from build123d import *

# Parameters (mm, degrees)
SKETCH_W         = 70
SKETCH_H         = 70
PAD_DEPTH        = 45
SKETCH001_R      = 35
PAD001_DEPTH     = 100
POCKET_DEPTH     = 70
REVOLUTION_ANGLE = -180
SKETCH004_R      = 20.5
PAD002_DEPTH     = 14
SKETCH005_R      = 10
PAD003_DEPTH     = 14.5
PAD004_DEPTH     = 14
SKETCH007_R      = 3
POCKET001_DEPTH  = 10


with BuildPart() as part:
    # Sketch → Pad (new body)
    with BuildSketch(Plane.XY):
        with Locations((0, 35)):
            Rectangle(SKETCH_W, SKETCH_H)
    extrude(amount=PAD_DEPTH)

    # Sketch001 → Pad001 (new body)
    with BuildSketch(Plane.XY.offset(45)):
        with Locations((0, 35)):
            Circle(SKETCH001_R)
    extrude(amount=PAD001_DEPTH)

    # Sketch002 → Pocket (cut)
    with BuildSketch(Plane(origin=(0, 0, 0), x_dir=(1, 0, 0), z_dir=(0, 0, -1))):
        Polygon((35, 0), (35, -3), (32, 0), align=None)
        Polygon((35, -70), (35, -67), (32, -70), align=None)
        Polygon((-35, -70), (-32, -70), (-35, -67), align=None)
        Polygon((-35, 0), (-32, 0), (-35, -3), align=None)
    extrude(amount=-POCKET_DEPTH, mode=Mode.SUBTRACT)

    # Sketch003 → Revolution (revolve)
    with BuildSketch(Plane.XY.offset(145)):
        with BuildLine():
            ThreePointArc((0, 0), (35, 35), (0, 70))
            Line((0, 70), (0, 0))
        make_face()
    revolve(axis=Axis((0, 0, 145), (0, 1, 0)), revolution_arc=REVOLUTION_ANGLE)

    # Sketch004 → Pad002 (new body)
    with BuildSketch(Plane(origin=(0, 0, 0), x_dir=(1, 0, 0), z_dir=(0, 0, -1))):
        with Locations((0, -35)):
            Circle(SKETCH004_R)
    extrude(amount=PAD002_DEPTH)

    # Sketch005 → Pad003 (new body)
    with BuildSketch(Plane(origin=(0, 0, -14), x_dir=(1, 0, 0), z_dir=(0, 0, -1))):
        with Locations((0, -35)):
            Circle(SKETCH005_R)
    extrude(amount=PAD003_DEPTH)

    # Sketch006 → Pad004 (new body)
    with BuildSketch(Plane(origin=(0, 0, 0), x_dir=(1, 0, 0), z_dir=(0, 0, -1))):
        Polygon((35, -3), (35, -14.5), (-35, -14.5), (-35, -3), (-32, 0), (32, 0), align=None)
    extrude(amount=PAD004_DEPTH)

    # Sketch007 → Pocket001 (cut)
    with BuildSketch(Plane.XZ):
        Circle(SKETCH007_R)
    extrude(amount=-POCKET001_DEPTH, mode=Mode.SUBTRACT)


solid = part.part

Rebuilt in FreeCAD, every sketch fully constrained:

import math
import FreeCAD as App
import Part
import Sketcher
from FreeCAD import Vector
Q = App.Units.Quantity


def add_polygon(sketch, points):
    """Adds a closed chain of lines whose ends are joined by coincident constraints."""
    first, n = sketch.GeometryCount, len(points)
    for a, b in zip(points, points[1:] + points[:1]):
        sketch.addGeometry(Part.LineSegment(App.Vector(*a, 0), App.Vector(*b, 0)), False)
    for i in range(n):
        sketch.addConstraint(Sketcher.Constraint("Coincident", first + i, 2, first + (i + 1) % n, 1))

doc = App.newDocument("Part")
body = doc.addObject("PartDesign::Body", "Body")

# Sketch on XY plane
sketch1 = doc.addObject("Sketcher::SketchObject", "Sketch")
body.addObject(sketch1)
sketch1.AttachmentSupport = (doc.XY_Plane, [""])
sketch1.MapMode = "FlatFace"
add_polygon(sketch1, [(-35, 70), (-35, 0), (35, 0), (35, 70)])  # lines 0-3
sketch1.addConstraint(Sketcher.Constraint("Vertical", 0))
sketch1.addConstraint(Sketcher.Constraint("Horizontal", 1))
sketch1.addConstraint(Sketcher.Constraint("Vertical", 2))
sketch1.addConstraint(Sketcher.Constraint("Horizontal", 3))
sketch1.addConstraint(Sketcher.Constraint("Symmetric", 0, 2, 1, 2, -1, 1))
sketch1.addConstraint(Sketcher.Constraint("Equal", 3, 0))
sketch1.addConstraint(Sketcher.Constraint("DistanceX", 1, 1, 1, 2, Q("70 mm")))
pad1 = doc.addObject("PartDesign::Pad", "Pad")
body.addObject(pad1)
pad1.Profile = sketch1
pad1.Length = 45

# Sketch on XY plane
sketch2 = doc.addObject("Sketcher::SketchObject", "Sketch001")
body.addObject(sketch2)
sketch2.AttachmentSupport = (doc.XY_Plane, [""])
sketch2.MapMode = "FlatFace"
sketch2.AttachmentOffset = App.Placement(Vector(0, 0, 45), App.Rotation())
sketch2.addGeometry(Part.Circle(Vector(0, 35, 0), Vector(0, 0, 1), 35), False)
sketch2.addConstraint(Sketcher.Constraint("PointOnObject", 0, 3, -2))
sketch2.addConstraint(Sketcher.Constraint("Diameter", 0, Q("70 mm")))
sketch2.addConstraint(Sketcher.Constraint("DistanceY", -1, 1, 0, 3, Q("35 mm")))
pad2 = doc.addObject("PartDesign::Pad", "Pad001")
body.addObject(pad2)
pad2.Profile = sketch2
pad2.Length = 100

# Sketch on XY plane
sketch3 = doc.addObject("Sketcher::SketchObject", "Sketch002")
body.addObject(sketch3)
sketch3.AttachmentSupport = (doc.XY_Plane, [""])
sketch3.MapMode = "FlatFace"
add_polygon(sketch3, [(35, 3), (35, 0), (32, 0)])  # lines 0-2
add_polygon(sketch3, [(35, 70), (35, 67), (32, 70)])  # lines 3-5
add_polygon(sketch3, [(-35, 70), (-32, 70), (-35, 67)])  # lines 6-8
add_polygon(sketch3, [(-32, 0), (-35, 0), (-35, 3)])  # lines 9-11
sketch3.addConstraint(Sketcher.Constraint("Vertical", 0))
sketch3.addConstraint(Sketcher.Constraint("Horizontal", 1))
sketch3.addConstraint(Sketcher.Constraint("Vertical", 3))
sketch3.addConstraint(Sketcher.Constraint("Horizontal", 5))
sketch3.addConstraint(Sketcher.Constraint("Horizontal", 6))
sketch3.addConstraint(Sketcher.Constraint("Vertical", 8))
sketch3.addConstraint(Sketcher.Constraint("Horizontal", 9))
sketch3.addConstraint(Sketcher.Constraint("Vertical", 10))
sketch3.addConstraint(Sketcher.Constraint("Symmetric", 0, 2, 9, 2, -1, 1))
sketch3.addConstraint(Sketcher.Constraint("Symmetric", 4, 2, 6, 2, -2))
sketch3.addConstraint(Sketcher.Constraint("Symmetric", 3, 2, 7, 2, -2))
sketch3.addConstraint(Sketcher.Constraint("Symmetric", 1, 2, 11, 2, -2))
sketch3.addConstraint(Sketcher.Constraint("Perpendicular", 2, 4))
sketch3.addConstraint(Sketcher.Constraint("Perpendicular", 4, 7))
sketch3.addConstraint(Sketcher.Constraint("Perpendicular", 7, 11))
sketch3.addConstraint(Sketcher.Constraint("Vertical", 2, 2, 3, 2))
sketch3.addConstraint(Sketcher.Constraint("Vertical", 1, 2, 4, 2))
sketch3.addConstraint(Sketcher.Constraint("DistanceX", 1, 2, 1, 1, Q("3 mm")))
sketch3.addConstraint(Sketcher.Constraint("DistanceX", -1, 1, 0, 2, Q("35 mm")))
sketch3.addConstraint(Sketcher.Constraint("DistanceY", -1, 1, 3, 2, Q("67 mm")))
pocket1 = doc.addObject("PartDesign::Pocket", "Pocket")
body.addObject(pocket1)
pocket1.Profile = sketch3
pocket1.Length = 70
pocket1.Reversed = True

# Sketch on XY plane
sketch4 = doc.addObject("Sketcher::SketchObject", "Sketch003")
body.addObject(sketch4)
sketch4.AttachmentSupport = (doc.XY_Plane, [""])
sketch4.MapMode = "FlatFace"
sketch4.AttachmentOffset = App.Placement(Vector(0, 0, 145), App.Rotation())
sketch4.addGeometry(Part.ArcOfCircle(Part.Circle(Vector(0, 35, 0), Vector(0, 0, 1), 35), math.radians(-90), math.radians(90)), False)
sketch4.addGeometry(Part.LineSegment(Vector(0, 70, 0), Vector(0, 0, 0)), False)
sketch4.addConstraint(Sketcher.Constraint("Coincident", 0, 1, 1, 2))
sketch4.addConstraint(Sketcher.Constraint("Coincident", 1, 1, 0, 2))
sketch4.addConstraint(Sketcher.Constraint("Vertical", 1))
sketch4.addConstraint(Sketcher.Constraint("Coincident", 0, 1, -1, 1))
sketch4.addConstraint(Sketcher.Constraint("PointOnObject", 0, 3, -2))
sketch4.addConstraint(Sketcher.Constraint("Radius", 0, Q("35 mm")))
revolution = doc.addObject("PartDesign::Revolution", "Revolution")
body.addObject(revolution)
revolution.Profile = sketch4
revolution.ReferenceAxis = (sketch4, ["V_Axis"])
revolution.Angle = 180
revolution.Reversed = True

# Sketch on XY plane
sketch5 = doc.addObject("Sketcher::SketchObject", "Sketch004")
body.addObject(sketch5)
sketch5.AttachmentSupport = (doc.XY_Plane, [""])
sketch5.MapMode = "FlatFace"
sketch5.addGeometry(Part.Circle(Vector(0, 35, 0), Vector(0, 0, 1), 20.5), False)
sketch5.addConstraint(Sketcher.Constraint("PointOnObject", 0, 3, -2))
sketch5.addConstraint(Sketcher.Constraint("Diameter", 0, Q("41 mm")))
sketch5.addConstraint(Sketcher.Constraint("DistanceY", -1, 1, 0, 3, Q("35 mm")))
pad3 = doc.addObject("PartDesign::Pad", "Pad002")
body.addObject(pad3)
pad3.Profile = sketch5
pad3.Length = 14
pad3.Reversed = True

# Sketch on XY plane
sketch6 = doc.addObject("Sketcher::SketchObject", "Sketch005")
body.addObject(sketch6)
sketch6.AttachmentSupport = (doc.XY_Plane, [""])
sketch6.MapMode = "FlatFace"
sketch6.AttachmentOffset = App.Placement(Vector(0, 0, -14), App.Rotation())
sketch6.addGeometry(Part.Circle(Vector(0, 35, 0), Vector(0, 0, 1), 10), False)
sketch6.addConstraint(Sketcher.Constraint("PointOnObject", 0, 3, -2))
sketch6.addConstraint(Sketcher.Constraint("Diameter", 0, Q("20 mm")))
sketch6.addConstraint(Sketcher.Constraint("DistanceY", -1, 1, 0, 3, Q("35 mm")))
pad4 = doc.addObject("PartDesign::Pad", "Pad003")
body.addObject(pad4)
pad4.Profile = sketch6
pad4.Length = 14.5
pad4.Reversed = True

# Sketch on XY plane
sketch7 = doc.addObject("Sketcher::SketchObject", "Sketch006")
body.addObject(sketch7)
sketch7.AttachmentSupport = (doc.XY_Plane, [""])
sketch7.MapMode = "FlatFace"
add_polygon(sketch7, [(35, 14.5), (35, 3), (32, 0), (-32, 0), (-35, 3), (-35, 14.5)])  # lines 0-5
sketch7.addConstraint(Sketcher.Constraint("Vertical", 0))
sketch7.addConstraint(Sketcher.Constraint("Horizontal", 2))
sketch7.addConstraint(Sketcher.Constraint("Vertical", 4))
sketch7.addConstraint(Sketcher.Constraint("Horizontal", 5))
sketch7.addConstraint(Sketcher.Constraint("Symmetric", 1, 2, 2, 2, -1, 1))
sketch7.addConstraint(Sketcher.Constraint("Symmetric", 0, 2, 3, 2, -2))
sketch7.addConstraint(Sketcher.Constraint("Perpendicular", 1, 3))
sketch7.addConstraint(Sketcher.Constraint("DistanceX", 2, 2, 2, 1, Q("64 mm")))
sketch7.addConstraint(Sketcher.Constraint("DistanceX", 5, 1, 5, 2, Q("70 mm")))
sketch7.addConstraint(Sketcher.Constraint("DistanceY", 0, 2, 0, 1, Q("11.5 mm")))
pad5 = doc.addObject("PartDesign::Pad", "Pad004")
body.addObject(pad5)
pad5.Profile = sketch7
pad5.Length = 14
pad5.Reversed = True

# Sketch on XZ plane
sketch8 = doc.addObject("Sketcher::SketchObject", "Sketch007")
body.addObject(sketch8)
sketch8.AttachmentSupport = (doc.XZ_Plane, [""])
sketch8.MapMode = "FlatFace"
sketch8.addGeometry(Part.Circle(Vector(0, 0, 0), Vector(0, 0, 1), 3), False)
sketch8.addConstraint(Sketcher.Constraint("Coincident", 0, 3, -1, 1))
sketch8.addConstraint(Sketcher.Constraint("Diameter", 0, Q("6 mm")))
pocket2 = doc.addObject("PartDesign::Pocket", "Pocket001")
body.addObject(pocket2)
pocket2.Profile = sketch8
pocket2.Length = 10

doc.recompute()
